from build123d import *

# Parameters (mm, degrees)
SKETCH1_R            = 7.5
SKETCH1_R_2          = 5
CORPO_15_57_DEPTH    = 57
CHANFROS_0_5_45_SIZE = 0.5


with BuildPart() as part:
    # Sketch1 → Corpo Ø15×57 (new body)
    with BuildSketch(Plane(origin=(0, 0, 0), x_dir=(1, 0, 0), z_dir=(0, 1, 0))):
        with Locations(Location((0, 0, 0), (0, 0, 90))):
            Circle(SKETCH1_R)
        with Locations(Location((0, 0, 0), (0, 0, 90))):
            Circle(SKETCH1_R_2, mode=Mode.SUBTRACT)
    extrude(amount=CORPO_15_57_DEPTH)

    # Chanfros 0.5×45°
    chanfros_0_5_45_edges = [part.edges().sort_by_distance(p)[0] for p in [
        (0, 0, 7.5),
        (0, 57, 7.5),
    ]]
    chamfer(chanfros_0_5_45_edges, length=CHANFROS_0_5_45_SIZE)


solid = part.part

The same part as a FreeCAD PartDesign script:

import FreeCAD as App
import Part
import Sketcher
Q = App.Units.Quantity


def edges_at(feature, points):
    """Names of the edges that pass closest to the given points."""
    edges = feature.Shape.Edges
    near = lambda p: min(range(len(edges)), key=lambda i: edges[i].distToShape(Part.Vertex(*p))[0])
    return sorted({f"Edge{near(p) + 1}" for p in points})

doc = App.newDocument("Part")
params = doc.addObject("Spreadsheet::Sheet", "Params")
for row, (alias, value) in enumerate([
    ("sketch1_diameter", "15 mm"),
    ("sketch1_diameter2", "10 mm"),
    ("pad1_length", "57 mm"),
    ("chamfer_size", "0.5 mm"),
], start=1):
    params.set(f"A{row}", alias)
    params.set(f"B{row}", "=" + value)
    params.setAlias(f"B{row}", alias)

body = doc.addObject("PartDesign::Body", "Body")

sketch1 = body.newObject("Sketcher::SketchObject", "Sketch")
sketch1.AttachmentSupport = (doc.getObject("XZ_Plane"), [""])
sketch1.MapMode = "FlatFace"
sketch1.addGeometry(Part.Circle(App.Vector(0, 0, 0), App.Vector(0, 0, 1), 7.5), False)
sketch1.addGeometry(Part.Circle(App.Vector(0, 0, 0), App.Vector(0, 0, 1), 5), False)
sketch1.addConstraint(Sketcher.Constraint("Coincident", 0, 3, -1, 1))
sketch1.addConstraint(Sketcher.Constraint("Coincident", 1, 3, -1, 1))
sketch1.addConstraint(Sketcher.Constraint("Diameter", 0, Q("15 mm")))
sketch1.addConstraint(Sketcher.Constraint("Diameter", 1, Q("10 mm")))
sketch1.setExpression("Constraints[2]", "Params.sketch1_diameter")
sketch1.setExpression("Constraints[3]", "Params.sketch1_diameter2")
pad1 = body.newObject("PartDesign::Pad", "Pad")
pad1.Profile = sketch1
pad1.setExpression("Length", "Params.pad1_length")
pad1.Reversed = True
doc.recompute()

chamfer = body.newObject("PartDesign::Chamfer", "Chamfer")
chamfer.Base = (pad1, edges_at(pad1, [(0, 0, 7.5), (0, 57, 7.5)]))
chamfer.setExpression("Size", "Params.chamfer_size")

doc.recompute()
